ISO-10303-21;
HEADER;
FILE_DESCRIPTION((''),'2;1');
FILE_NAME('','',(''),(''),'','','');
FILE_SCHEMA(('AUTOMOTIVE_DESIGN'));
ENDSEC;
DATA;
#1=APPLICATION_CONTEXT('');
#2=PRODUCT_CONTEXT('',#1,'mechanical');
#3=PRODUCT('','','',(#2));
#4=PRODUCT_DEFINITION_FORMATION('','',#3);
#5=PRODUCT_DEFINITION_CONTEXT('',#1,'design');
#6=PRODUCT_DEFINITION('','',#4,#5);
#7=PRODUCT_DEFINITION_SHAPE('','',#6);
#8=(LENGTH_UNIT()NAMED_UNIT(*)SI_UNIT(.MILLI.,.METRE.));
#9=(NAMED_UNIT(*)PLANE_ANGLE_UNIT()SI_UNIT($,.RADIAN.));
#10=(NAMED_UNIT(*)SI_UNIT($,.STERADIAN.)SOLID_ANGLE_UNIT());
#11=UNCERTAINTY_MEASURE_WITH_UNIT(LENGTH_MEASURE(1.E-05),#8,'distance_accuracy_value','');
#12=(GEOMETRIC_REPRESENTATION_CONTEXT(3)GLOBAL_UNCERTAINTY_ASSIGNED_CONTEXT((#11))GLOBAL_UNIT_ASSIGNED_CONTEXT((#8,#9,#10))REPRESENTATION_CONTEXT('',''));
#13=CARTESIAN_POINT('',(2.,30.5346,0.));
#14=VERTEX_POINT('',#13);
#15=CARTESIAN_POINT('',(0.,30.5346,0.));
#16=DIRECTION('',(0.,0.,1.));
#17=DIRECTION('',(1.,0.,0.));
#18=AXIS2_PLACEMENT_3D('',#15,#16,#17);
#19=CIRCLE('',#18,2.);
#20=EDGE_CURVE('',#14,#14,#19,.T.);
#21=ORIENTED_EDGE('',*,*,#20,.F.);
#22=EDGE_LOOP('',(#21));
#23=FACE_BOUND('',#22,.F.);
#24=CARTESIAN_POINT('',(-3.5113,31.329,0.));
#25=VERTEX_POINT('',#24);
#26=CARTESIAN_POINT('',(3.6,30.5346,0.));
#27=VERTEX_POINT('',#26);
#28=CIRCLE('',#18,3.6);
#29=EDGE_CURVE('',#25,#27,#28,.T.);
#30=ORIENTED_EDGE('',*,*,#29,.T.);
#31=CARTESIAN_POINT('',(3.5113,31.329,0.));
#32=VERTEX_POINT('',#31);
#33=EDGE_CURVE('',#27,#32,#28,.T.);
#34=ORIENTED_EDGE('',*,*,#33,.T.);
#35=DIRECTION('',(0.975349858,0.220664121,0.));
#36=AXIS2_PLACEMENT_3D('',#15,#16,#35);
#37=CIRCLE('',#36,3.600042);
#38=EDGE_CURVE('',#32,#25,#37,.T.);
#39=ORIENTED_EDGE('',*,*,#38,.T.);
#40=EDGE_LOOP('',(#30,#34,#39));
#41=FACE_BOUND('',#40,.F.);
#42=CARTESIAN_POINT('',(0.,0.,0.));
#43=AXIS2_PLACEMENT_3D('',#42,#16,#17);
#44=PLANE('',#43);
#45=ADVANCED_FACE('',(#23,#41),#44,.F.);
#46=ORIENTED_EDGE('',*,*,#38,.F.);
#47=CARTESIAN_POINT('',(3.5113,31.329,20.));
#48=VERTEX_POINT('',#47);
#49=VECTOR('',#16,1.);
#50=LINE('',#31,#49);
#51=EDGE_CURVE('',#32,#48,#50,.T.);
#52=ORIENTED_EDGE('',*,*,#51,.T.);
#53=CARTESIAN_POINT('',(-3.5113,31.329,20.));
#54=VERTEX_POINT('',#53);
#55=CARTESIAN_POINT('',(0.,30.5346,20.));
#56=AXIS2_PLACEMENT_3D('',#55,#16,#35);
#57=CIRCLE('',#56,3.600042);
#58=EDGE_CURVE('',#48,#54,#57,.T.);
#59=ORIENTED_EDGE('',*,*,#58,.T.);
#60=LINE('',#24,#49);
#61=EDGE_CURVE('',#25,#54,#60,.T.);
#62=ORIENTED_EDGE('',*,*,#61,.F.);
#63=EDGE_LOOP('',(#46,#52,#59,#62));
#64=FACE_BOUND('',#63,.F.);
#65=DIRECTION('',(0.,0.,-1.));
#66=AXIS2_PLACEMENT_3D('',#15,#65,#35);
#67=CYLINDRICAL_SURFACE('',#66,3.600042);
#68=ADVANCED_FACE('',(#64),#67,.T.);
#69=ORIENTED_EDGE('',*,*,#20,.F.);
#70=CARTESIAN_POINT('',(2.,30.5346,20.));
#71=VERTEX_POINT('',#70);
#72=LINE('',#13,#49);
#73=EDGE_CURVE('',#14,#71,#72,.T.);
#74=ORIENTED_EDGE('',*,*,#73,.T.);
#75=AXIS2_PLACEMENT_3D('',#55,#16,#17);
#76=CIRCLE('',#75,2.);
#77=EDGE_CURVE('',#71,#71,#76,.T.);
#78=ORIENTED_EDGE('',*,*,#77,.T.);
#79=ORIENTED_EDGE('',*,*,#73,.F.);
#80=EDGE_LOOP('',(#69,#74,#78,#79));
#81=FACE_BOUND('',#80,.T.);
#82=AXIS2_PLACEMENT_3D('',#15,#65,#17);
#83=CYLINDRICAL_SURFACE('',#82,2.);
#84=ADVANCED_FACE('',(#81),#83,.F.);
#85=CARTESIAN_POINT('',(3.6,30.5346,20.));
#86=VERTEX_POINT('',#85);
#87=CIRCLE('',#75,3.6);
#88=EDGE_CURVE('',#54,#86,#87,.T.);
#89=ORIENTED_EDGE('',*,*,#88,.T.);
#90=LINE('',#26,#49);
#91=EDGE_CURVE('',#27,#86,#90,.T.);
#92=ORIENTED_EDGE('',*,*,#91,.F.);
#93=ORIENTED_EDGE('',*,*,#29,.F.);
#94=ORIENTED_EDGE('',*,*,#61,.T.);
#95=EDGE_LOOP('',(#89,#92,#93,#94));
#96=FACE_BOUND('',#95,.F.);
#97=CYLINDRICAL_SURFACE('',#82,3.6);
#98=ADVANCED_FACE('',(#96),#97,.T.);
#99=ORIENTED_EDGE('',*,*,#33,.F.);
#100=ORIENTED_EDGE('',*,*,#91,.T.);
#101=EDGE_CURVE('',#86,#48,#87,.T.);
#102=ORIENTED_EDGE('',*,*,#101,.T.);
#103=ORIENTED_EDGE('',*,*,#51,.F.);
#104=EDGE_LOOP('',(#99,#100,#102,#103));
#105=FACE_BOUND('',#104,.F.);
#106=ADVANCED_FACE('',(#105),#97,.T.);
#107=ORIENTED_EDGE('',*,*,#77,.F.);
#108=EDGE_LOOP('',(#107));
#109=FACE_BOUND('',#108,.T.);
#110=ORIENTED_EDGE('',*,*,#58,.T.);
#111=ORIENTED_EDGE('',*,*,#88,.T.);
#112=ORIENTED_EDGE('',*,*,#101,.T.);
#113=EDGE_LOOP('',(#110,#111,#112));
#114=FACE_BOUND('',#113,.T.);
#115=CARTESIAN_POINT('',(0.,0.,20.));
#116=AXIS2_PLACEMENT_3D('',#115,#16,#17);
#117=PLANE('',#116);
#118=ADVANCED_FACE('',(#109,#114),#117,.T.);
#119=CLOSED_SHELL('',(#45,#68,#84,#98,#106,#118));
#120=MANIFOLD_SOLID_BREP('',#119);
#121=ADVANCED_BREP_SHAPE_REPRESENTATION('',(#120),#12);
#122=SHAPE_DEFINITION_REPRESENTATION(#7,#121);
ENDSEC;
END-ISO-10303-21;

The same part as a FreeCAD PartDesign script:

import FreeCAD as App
import Part
import Sketcher

V = App.Vector
Q = App.Units.Quantity

doc = App.newDocument("Part")
body = doc.addObject("PartDesign::Body", "Body")

# Sketch on XY plane
sketch1 = body.newObject("Sketcher::SketchObject", "Sketch")
sketch1.AttachmentSupport = (doc.getObject("XY_Plane"), [""])
sketch1.MapMode = "FlatFace"
sketch1.addGeometry([
    Part.Circle(V(0, 30.5, 0), V(0, 0, 1), 3.6),
    Part.Circle(V(0, 30.5, 0), V(0, 0, 1), 2),
], False)
sketch1.addConstraint([
    Sketcher.Constraint("Coincident", 1, 3, 0, 3),
    Sketcher.Constraint("PointOnObject", 0, 3, -2),
    Sketcher.Constraint("Diameter", 1, Q("4 mm")),
    Sketcher.Constraint("Diameter", 0, Q("7.2 mm")),
    Sketcher.Constraint("DistanceY", -1, 1, 0, 3, Q("30.5346 mm")),
])
pad1 = body.newObject("PartDesign::Pad", "Pad")
pad1.Profile = sketch1
pad1.Length = 20

doc.recompute()
